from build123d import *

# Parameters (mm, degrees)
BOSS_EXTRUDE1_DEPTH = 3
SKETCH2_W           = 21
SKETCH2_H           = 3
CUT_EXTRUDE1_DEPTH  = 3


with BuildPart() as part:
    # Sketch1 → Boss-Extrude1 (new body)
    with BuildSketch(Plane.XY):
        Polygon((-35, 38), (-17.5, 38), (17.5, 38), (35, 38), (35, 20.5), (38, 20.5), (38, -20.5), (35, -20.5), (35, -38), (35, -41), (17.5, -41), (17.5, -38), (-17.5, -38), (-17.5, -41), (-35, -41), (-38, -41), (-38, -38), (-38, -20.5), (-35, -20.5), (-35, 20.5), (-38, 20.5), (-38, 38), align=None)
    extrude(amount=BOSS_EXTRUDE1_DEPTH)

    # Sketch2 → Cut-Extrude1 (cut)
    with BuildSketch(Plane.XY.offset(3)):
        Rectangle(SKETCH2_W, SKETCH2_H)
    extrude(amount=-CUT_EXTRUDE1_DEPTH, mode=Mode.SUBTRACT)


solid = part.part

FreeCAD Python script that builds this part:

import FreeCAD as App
import Part
import Sketcher

V = App.Vector
Q = App.Units.Quantity

doc = App.newDocument("Part")
body = doc.addObject("PartDesign::Body", "Body")

sketch1 = body.newObject("Sketcher::SketchObject", "Sketch")
sketch1.AttachmentSupport = (doc.getObject("XY_Plane"), [""])
sketch1.MapMode = "FlatFace"
sketch1.addGeometry([
    Part.LineSegment(V(35, 38, 0), V(-38, 38, 0)),
    Part.LineSegment(V(-38, 38, 0), V(-38, 20.5, 0)),
    Part.LineSegment(V(-38, 20.5, 0), V(-35, 20.5, 0)),
    Part.LineSegment(V(-35, 20.5, 0), V(-35, -20.5, 0)),
    Part.LineSegment(V(-35, -20.5, 0), V(-38, -20.5, 0)),
    Part.LineSegment(V(-38, -20.5, 0), V(-38, -41, 0)),
    Part.LineSegment(V(-38, -41, 0), V(-17.5, -41, 0)),
    Part.LineSegment(V(-17.5, -41, 0), V(-17.5, -38, 0)),
    Part.LineSegment(V(-17.5, -38, 0), V(17.5, -38, 0)),
    Part.LineSegment(V(17.5, -38, 0), V(17.5, -41, 0)),
    Part.LineSegment(V(17.5, -41, 0), V(35, -41, 0)),
    Part.LineSegment(V(35, -41, 0), V(35, -20.5, 0)),
    Part.LineSegment(V(35, -20.5, 0), V(38, -20.5, 0)),
    Part.LineSegment(V(38, -20.5, 0), V(38, 20.5, 0)),
    Part.LineSegment(V(38, 20.5, 0), V(35, 20.5, 0)),
    Part.LineSegment(V(35, 20.5, 0), V(35, 38, 0)),
], False)
sketch1.addConstraint([
    Sketcher.Constraint("Coincident", 0, 2, 1, 1),
    Sketcher.Constraint("Coincident", 1, 2, 2, 1),
    Sketcher.Constraint("Coincident", 2, 2, 3, 1),
    Sketcher.Constraint("Coincident", 3, 2, 4, 1),
    Sketcher.Constraint("Coincident", 4, 2, 5, 1),
    Sketcher.Constraint("Coincident", 5, 2, 6, 1),
    Sketcher.Constraint("Coincident", 6, 2, 7, 1),
    Sketcher.Constraint("Coincident", 7, 2, 8, 1),
    Sketcher.Constraint("Coincident", 8, 2, 9, 1),
    Sketcher.Constraint("Coincident", 9, 2, 10, 1),
    Sketcher.Constraint("Coincident", 10, 2, 11, 1),
    Sketcher.Constraint("Coincident", 11, 2, 12, 1),
    Sketcher.Constraint("Coincident", 12, 2, 13, 1),
    Sketcher.Constraint("Coincident", 13, 2, 14, 1),
    Sketcher.Constraint("Coincident", 14, 2, 15, 1),
    Sketcher.Constraint("Coincident", 15, 2, 0, 1),
    Sketcher.Constraint("Horizontal", 0),
    Sketcher.Constraint("Vertical", 1),
    Sketcher.Constraint("Horizontal", 2),
    Sketcher.Constraint("Vertical", 3),
    Sketcher.Constraint("Horizontal", 4),
    Sketcher.Constraint("Vertical", 5),
    Sketcher.Constraint("Horizontal", 6),
    Sketcher.Constraint("Vertical", 7),
    Sketcher.Constraint("Horizontal", 8),
    Sketcher.Constraint("Vertical", 9),
    Sketcher.Constraint("Horizontal", 10),
    Sketcher.Constraint("Vertical", 11),
    Sketcher.Constraint("Horizontal", 12),
    Sketcher.Constraint("Vertical", 13),
    Sketcher.Constraint("Horizontal", 14),
    Sketcher.Constraint("Vertical", 15),
    Sketcher.Constraint("Symmetric", 2, 2, 11, 2, -1, 1),
    Sketcher.Constraint("Symmetric", 4, 2, 13, 2, -1, 1),
    Sketcher.Constraint("Symmetric", 6, 2, 9, 2, -2),
    Sketcher.Constraint("Symmetric", 1, 2, 13, 2, -2),
    Sketcher.Constraint("Vertical", 11, 2, 14, 2),
    Sketcher.Constraint("Equal", 10, 1),
    Sketcher.Constraint("Equal", 6, 5),
    Sketcher.Constraint("Equal", 14, 7),
    Sketcher.Constraint("DistanceX", 0, 2, 0, 1, Q("73 mm")),
    Sketcher.Constraint("DistanceX", 2, 1, 2, 2, Q("3 mm")),
    Sketcher.Constraint("DistanceX", 8, 1, 8, 2, Q("35 mm")),
    Sketcher.Constraint("DistanceY", 3, 2, 3, 1, Q("41 mm")),
])
pad1 = body.newObject("PartDesign::Pad", "Pad")
pad1.Profile = sketch1
pad1.Length = 3

sketch2 = body.newObject("Sketcher::SketchObject", "Sketch001")
sketch2.AttachmentSupport = (doc.getObject("XY_Plane"), [""])
sketch2.MapMode = "FlatFace"
sketch2.AttachmentOffset = App.Placement(V(0, 0, 3), App.Rotation())
sketch2.addGeometry([
    Part.LineSegment(V(-10.5, 1.5, 0), V(-10.5, -1.5, 0)),
    Part.LineSegment(V(-10.5, -1.5, 0), V(10.5, -1.5, 0)),
    Part.LineSegment(V(10.5, -1.5, 0), V(10.5, 1.5, 0)),
    Part.LineSegment(V(10.5, 1.5, 0), V(-10.5, 1.5, 0)),
], False)
sketch2.addConstraint([
    Sketcher.Constraint("Coincident", 0, 2, 1, 1),
    Sketcher.Constraint("Coincident", 1, 2, 2, 1),
    Sketcher.Constraint("Coincident", 2, 2, 3, 1),
    Sketcher.Constraint("Coincident", 3, 2, 0, 1),
    Sketcher.Constraint("Vertical", 0),
    Sketcher.Constraint("Horizontal", 1),
    Sketcher.Constraint("Vertical", 2),
    Sketcher.Constraint("Horizontal", 3),
    Sketcher.Constraint("Symmetric", 0, 2, 2, 2, -1, 1),
    Sketcher.Constraint("DistanceX", 1, 1, 1, 2, Q("21 mm")),
    Sketcher.Constraint("DistanceY", 0, 2, 0, 1, Q("3 mm")),
])
pocket1 = body.newObject("PartDesign::Pocket", "Pocket")
pocket1.Profile = sketch2
pocket1.Length = 3

doc.recompute()
